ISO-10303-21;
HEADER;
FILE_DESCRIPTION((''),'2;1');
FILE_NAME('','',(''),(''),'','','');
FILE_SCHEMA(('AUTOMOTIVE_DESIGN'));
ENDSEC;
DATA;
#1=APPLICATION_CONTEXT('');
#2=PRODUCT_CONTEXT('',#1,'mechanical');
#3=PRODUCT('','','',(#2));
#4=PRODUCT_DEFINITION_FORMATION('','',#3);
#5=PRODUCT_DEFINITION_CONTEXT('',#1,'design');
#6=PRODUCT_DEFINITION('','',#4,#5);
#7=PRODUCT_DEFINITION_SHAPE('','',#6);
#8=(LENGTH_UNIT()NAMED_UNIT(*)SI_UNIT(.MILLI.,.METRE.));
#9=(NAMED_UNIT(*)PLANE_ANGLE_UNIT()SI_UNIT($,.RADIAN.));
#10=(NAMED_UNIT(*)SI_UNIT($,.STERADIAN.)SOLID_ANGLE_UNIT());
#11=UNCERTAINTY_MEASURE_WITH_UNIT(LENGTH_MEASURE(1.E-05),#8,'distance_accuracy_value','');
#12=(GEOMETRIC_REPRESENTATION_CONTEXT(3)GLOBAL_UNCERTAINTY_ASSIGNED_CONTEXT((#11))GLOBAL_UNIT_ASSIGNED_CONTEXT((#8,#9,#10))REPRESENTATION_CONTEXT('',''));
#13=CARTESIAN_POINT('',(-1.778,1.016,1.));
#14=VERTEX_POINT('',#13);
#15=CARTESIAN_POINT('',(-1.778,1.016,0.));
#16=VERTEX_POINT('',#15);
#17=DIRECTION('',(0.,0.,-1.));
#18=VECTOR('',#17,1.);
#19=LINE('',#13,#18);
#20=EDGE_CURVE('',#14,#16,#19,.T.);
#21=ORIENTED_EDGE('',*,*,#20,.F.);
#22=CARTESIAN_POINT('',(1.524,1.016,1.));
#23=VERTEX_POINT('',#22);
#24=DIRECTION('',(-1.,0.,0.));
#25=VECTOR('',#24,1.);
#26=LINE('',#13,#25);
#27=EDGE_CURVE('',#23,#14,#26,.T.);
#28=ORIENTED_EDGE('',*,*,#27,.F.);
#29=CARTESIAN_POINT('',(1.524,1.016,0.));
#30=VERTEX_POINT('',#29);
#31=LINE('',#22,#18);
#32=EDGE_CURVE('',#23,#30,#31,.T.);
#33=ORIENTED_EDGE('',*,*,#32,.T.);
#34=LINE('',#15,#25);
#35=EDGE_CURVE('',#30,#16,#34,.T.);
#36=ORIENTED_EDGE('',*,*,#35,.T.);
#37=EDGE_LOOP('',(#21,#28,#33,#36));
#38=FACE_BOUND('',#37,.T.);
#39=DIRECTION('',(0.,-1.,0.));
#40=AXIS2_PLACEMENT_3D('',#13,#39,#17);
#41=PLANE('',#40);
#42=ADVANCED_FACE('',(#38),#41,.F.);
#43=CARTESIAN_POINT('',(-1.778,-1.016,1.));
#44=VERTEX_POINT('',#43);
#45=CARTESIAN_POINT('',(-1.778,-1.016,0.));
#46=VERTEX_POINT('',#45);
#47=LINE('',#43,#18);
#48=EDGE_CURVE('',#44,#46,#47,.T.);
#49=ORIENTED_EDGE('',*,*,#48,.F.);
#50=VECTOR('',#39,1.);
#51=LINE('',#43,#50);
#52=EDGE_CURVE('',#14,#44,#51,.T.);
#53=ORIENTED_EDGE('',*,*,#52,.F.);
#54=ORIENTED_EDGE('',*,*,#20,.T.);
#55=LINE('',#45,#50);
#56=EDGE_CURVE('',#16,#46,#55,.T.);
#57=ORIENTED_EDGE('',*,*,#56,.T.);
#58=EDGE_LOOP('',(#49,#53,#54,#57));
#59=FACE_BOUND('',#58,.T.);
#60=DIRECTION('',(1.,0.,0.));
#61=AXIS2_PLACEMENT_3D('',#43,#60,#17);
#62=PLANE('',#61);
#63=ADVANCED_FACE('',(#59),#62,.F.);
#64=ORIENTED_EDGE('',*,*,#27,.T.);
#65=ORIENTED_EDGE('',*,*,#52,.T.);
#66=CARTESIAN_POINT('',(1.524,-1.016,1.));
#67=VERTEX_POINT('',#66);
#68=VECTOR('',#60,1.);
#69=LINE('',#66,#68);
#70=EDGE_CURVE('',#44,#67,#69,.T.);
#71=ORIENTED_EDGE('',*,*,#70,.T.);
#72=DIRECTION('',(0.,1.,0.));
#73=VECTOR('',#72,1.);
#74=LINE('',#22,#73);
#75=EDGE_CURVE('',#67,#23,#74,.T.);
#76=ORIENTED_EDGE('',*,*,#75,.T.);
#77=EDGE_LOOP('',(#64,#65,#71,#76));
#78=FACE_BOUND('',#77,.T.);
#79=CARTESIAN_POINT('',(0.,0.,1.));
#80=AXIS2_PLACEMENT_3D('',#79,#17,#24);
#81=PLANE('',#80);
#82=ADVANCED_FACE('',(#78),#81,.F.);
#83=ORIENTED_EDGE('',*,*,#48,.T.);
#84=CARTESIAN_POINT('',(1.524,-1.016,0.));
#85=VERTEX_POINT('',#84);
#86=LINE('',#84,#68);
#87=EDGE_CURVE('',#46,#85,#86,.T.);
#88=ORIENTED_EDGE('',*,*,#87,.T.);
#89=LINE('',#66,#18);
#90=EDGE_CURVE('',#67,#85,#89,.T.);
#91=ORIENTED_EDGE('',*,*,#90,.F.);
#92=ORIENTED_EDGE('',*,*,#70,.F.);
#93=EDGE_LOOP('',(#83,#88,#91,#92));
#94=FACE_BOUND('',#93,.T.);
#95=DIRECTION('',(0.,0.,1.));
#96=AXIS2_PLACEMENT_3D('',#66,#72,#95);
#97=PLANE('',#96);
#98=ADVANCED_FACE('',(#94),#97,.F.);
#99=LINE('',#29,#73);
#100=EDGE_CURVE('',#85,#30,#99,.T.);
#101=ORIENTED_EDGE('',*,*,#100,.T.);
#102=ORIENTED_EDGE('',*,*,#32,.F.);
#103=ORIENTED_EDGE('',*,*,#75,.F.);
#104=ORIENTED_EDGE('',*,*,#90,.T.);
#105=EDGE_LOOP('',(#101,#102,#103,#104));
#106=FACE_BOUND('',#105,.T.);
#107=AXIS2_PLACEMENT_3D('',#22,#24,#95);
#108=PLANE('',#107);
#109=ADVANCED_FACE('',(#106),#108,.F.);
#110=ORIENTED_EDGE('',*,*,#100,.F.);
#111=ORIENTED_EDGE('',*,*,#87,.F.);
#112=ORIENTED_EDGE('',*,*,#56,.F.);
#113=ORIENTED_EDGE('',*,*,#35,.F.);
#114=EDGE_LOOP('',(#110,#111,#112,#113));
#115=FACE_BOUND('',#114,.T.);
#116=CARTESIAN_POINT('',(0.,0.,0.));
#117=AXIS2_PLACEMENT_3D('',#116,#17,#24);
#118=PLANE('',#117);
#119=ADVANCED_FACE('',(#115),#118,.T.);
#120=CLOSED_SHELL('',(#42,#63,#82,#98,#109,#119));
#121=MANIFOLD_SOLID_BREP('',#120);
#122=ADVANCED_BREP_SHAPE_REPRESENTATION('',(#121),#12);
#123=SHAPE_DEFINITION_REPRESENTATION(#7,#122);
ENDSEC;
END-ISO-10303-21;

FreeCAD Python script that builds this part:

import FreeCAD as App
import Part
import Sketcher
from FreeCAD import Vector
Q = App.Units.Quantity


def add_polygon(sketch, points):
    """Adds a closed chain of lines whose ends are joined by coincident constraints."""
    first, n = sketch.GeometryCount, len(points)
    for a, b in zip(points, points[1:] + points[:1]):
        sketch.addGeometry(Part.LineSegment(App.Vector(*a, 0), App.Vector(*b, 0)), False)
    for i in range(n):
        sketch.addConstraint(Sketcher.Constraint("Coincident", first + i, 2, first + (i + 1) % n, 1))

doc = App.newDocument("Part")
body = doc.addObject("PartDesign::Body", "Body")

sketch1 = body.newObject("Sketcher::SketchObject", "Sketch")
sketch1.AttachmentSupport = (doc.getObject("XY_Plane"), [""])
sketch1.MapMode = "FlatFace"
add_polygon(sketch1, [(-1.8, 1), (-1.8, -1), (1.5, -1), (1.5, 1)])
sketch1.addConstraint([
    Sketcher.Constraint("Vertical", 0),
    Sketcher.Constraint("Horizontal", 1),
    Sketcher.Constraint("Vertical", 2),
    Sketcher.Constraint("Horizontal", 3),
    Sketcher.Constraint("DistanceX", 1, 1, 1, 2, Q("0.13 in")),
    Sketcher.Constraint("DistanceY", 0, 2, 0, 1, Q("0.08 in")),
    Sketcher.Constraint("DistanceX", 0, 2, -1, 1, Q("0.07 in")),
    Sketcher.Constraint("DistanceY", 0, 2, -1, 1, Q("0.04 in")),
])
pad1 = body.newObject("PartDesign::Pad", "Pad")
pad1.Profile = sketch1
pad1.Length = 1

doc.recompute()
